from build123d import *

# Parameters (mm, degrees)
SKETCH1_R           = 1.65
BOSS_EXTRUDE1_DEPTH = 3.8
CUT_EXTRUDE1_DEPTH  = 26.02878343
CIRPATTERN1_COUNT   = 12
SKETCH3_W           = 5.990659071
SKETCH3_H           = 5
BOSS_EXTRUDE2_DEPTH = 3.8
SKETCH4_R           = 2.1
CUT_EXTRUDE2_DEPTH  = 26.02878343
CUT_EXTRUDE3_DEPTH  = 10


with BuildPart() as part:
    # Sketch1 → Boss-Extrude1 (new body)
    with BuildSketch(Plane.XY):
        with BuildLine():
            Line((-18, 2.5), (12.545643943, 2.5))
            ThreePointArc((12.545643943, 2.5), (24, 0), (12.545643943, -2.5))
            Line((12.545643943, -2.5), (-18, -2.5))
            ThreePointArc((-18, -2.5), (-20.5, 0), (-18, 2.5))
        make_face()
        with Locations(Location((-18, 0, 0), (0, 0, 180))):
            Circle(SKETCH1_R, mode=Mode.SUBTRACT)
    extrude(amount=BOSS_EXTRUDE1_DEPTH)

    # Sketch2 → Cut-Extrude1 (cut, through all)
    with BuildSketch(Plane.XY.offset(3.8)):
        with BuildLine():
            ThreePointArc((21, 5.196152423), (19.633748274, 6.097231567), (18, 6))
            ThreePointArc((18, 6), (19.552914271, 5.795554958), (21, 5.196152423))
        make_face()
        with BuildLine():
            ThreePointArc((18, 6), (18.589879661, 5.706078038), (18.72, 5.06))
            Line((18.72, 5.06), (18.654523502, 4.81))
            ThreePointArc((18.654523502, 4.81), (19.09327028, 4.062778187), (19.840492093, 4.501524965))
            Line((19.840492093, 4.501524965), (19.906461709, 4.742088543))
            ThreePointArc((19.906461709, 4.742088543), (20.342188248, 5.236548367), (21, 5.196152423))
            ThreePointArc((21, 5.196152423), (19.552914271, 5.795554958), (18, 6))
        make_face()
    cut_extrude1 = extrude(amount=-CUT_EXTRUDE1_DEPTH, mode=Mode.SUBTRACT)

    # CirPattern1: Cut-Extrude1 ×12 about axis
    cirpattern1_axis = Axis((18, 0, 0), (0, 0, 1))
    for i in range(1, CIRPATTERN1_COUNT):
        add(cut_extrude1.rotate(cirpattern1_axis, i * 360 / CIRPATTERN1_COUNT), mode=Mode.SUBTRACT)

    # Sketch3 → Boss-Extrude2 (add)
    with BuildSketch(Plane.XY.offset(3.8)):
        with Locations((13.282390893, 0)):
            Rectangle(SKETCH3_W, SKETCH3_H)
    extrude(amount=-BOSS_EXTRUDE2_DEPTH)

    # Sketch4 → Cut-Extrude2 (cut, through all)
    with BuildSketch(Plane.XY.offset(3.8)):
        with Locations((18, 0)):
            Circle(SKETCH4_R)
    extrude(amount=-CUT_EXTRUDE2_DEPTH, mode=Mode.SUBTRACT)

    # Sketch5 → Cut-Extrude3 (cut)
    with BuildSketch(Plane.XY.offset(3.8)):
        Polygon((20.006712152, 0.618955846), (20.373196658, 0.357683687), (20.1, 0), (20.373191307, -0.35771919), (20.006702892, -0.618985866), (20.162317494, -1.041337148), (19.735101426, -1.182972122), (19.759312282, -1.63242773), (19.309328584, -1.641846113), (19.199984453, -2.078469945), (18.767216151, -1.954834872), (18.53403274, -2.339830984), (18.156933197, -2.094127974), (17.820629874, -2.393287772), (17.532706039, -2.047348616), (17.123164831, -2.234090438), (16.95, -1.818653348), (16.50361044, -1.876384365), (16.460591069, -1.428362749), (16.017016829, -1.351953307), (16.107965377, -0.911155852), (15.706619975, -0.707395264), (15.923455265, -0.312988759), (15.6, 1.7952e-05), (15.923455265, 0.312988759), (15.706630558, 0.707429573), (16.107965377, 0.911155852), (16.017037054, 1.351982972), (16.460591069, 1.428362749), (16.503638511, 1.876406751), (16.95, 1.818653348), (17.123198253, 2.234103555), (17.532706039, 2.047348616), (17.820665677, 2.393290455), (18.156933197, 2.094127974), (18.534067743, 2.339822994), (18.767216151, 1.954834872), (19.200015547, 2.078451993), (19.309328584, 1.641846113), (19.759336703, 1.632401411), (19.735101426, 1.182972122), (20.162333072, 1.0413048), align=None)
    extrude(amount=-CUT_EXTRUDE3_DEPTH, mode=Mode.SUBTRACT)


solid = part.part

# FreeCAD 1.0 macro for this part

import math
import FreeCAD as App
import Part
import Sketcher

V = App.Vector

doc = App.newDocument("Part")
body = doc.addObject("PartDesign::Body", "Body")
body.AllowCompound = True

# Sketch on XY plane
sketch1 = body.newObject("Sketcher::SketchObject", "Sketch")
sketch1.AttachmentSupport = (doc.getObject("XY_Plane"), [""])
sketch1.MapMode = "FlatFace"
sketch1.addGeometry(Part.LineSegment(V(12.545644, 2.5, 0), V(-18, 2.5, 0)), False)
sketch1.addGeometry(Part.ArcOfCircle(Part.Circle(V(-18, 0, 0), V(0, 0, 1), 2.5), math.radians(90), math.radians(270)), False)
sketch1.addGeometry(Part.LineSegment(V(-18, -2.5, 0), V(12.545644, -2.5, 0)), False)
sketch1.addGeometry(Part.ArcOfCircle(Part.Circle(V(18, 0, 0), V(0, 0, 1), 6), math.radians(-155.375682), math.radians(155.375682)), False)
sketch1.addGeometry(Part.Circle(V(-18, 0, 0), V(0, 0, 1), 1.65), False)
sketch1.addConstraint(Sketcher.Constraint("Tangent", 0, 2, 1, 1))
sketch1.addConstraint(Sketcher.Constraint("Tangent", 1, 2, 2, 1))
sketch1.addConstraint(Sketcher.Constraint("Coincident", 2, 2, 3, 1))
sketch1.addConstraint(Sketcher.Constraint("Coincident", 3, 2, 0, 1))
sketch1.addConstraint(Sketcher.Constraint("Horizontal", 0))
sketch1.addConstraint(Sketcher.Constraint("Horizontal", 2))
sketch1.addConstraint(Sketcher.Constraint("Coincident", 4, 3, 1, 3))
sketch1.addConstraint(Sketcher.Constraint("Symmetric", 1, 3, 3, 3, -1, 1))
sketch1.addConstraint(Sketcher.Constraint("PointOnObject", 1, 3, -1))
sketch1.addConstraint(Sketcher.Constraint("Radius", 3, 6.0))
sketch1.addConstraint(Sketcher.Constraint("Diameter", 4, 3.3))
sketch1.addConstraint(Sketcher.Constraint("Radius", 1, 2.5))
sketch1.addConstraint(Sketcher.Constraint("DistanceX", 1, 3, -1, 1, 18.0))
pad1 = body.newObject("PartDesign::Pad", "Pad")
pad1.Profile = sketch1
pad1.Length = 3.8

# Sketch on XY plane
sketch2 = body.newObject("Sketcher::SketchObject", "Sketch001")
sketch2.AttachmentSupport = (doc.getObject("XY_Plane"), [""])
sketch2.MapMode = "FlatFace"
sketch2.AttachmentOffset = App.Placement(V(0, 0, 3.8), App.Rotation())
sketch2.addGeometry(Part.ArcOfCircle(Part.Circle(V(18.962968, 3.593847, 0), V(0, 0, 1), 2.591695), math.radians(38.188186), math.radians(111.811814)), False)
sketch2.addGeometry(Part.ArcOfCircle(Part.Circle(V(17.994471, 5.25002, 0), V(0, 0, 1), 0.75), math.radians(-14.676459), math.radians(89.577616)), False)
sketch2.addGeometry(Part.LineSegment(V(18.72, 5.06, 0), V(18.654524, 4.81, 0)), False)
sketch2.addGeometry(Part.ArcOfCircle(Part.Circle(V(19.247508, 4.655762, 0), V(0, 0, 1), 0.612715), math.radians(165.420209), math.radians(345.420209)), False)
sketch2.addGeometry(Part.LineSegment(V(19.840492, 4.501525, 0), V(19.906462, 4.742089, 0)), False)
sketch2.addGeometry(Part.ArcOfCircle(Part.Circle(V(20.629798, 4.543887, 0), V(0, 0, 1), 0.75), math.radians(60.422385), math.radians(164.676459)), False)
sketch2.addConstraint(Sketcher.Constraint("Coincident", 0, 2, 1, 2))
sketch2.addConstraint(Sketcher.Constraint("Tangent", 1, 1, 2, 1))
sketch2.addConstraint(Sketcher.Constraint("Coincident", 2, 2, 3, 1))
sketch2.addConstraint(Sketcher.Constraint("Coincident", 3, 2, 4, 1))
sketch2.addConstraint(Sketcher.Constraint("Coincident", 4, 2, 5, 2))
sketch2.addConstraint(Sketcher.Constraint("Coincident", 5, 1, 0, 1))
sketch2.addConstraint(Sketcher.Constraint("Equal", 1, 5))
sketch2.addConstraint(Sketcher.Constraint("Radius", 1, 0.75))
sketch2.addConstraint(Sketcher.Constraint("DistanceX", -1, 1, 0, 2, 18.0))
sketch2.addConstraint(Sketcher.Constraint("DistanceY", -1, 1, 0, 2, 6.0))
sketch2.addConstraint(Sketcher.Constraint("DistanceX", -1, 1, 5, 1, 21.0))
sketch2.addConstraint(Sketcher.Constraint("DistanceX", -1, 1, 1, 1, 18.72))
sketch2.addConstraint(Sketcher.Constraint("DistanceY", -1, 1, 1, 1, 5.06))
sketch2.addConstraint(Sketcher.Constraint("DistanceY", -1, 1, 2, 2, 4.81))
sketch2.addConstraint(Sketcher.Constraint("Radius", 0, 2.591695))
sketch2.addConstraint(Sketcher.Constraint("Radius", 3, 0.612715))
sketch2.addConstraint(Sketcher.Constraint("DistanceX", -1, 1, 5, 3, 20.629798))
sketch2.addConstraint(Sketcher.Constraint("DistanceX", -1, 1, 0, 3, 18.962968))
sketch2.addConstraint(Sketcher.Constraint("DistanceX", -1, 1, 4, 2, 19.906462))
sketch2.addConstraint(Sketcher.Constraint("DistanceX", 0, 3, 3, 3, 0.28454))
sketch2.addConstraint(Sketcher.Constraint("DistanceY", 3, 2, 5, 3, 0.042362))
pocket1 = body.newObject("PartDesign::Pocket", "Pocket")
pocket1.Profile = sketch2
pocket1.Type = "ThroughAll"
doc.recompute()

datumline = body.newObject("PartDesign::Line", "DatumLine")
datumline.Placement = App.Placement(V(18, 0, 0), App.Rotation(V(0, 0, 1), V(0, 0, 1)))
polarpattern = body.newObject("PartDesign::PolarPattern", "PolarPattern")
polarpattern.Originals = [pocket1]
polarpattern.Axis = (datumline, [""])
polarpattern.Angle = 360
polarpattern.Occurrences = 12
body.Tip = polarpattern

# Sketch on XY plane
sketch3 = body.newObject("Sketcher::SketchObject", "Sketch002")
sketch3.AttachmentSupport = (doc.getObject("XY_Plane"), [""])
sketch3.MapMode = "FlatFace"
sketch3.AttachmentOffset = App.Placement(V(0, 0, 3.8), App.Rotation())
sketch3.addGeometry(Part.LineSegment(V(10.287061, 2.5, 0), V(10.287061, -2.5, 0)), False)
sketch3.addGeometry(Part.LineSegment(V(10.287061, -2.5, 0), V(16.27772, -2.5, 0)), False)
sketch3.addGeometry(Part.LineSegment(V(16.27772, -2.5, 0), V(16.27772, 2.5, 0)), False)
sketch3.addGeometry(Part.LineSegment(V(16.27772, 2.5, 0), V(10.287061, 2.5, 0)), False)
sketch3.addConstraint(Sketcher.Constraint("Coincident", 0, 2, 1, 1))
sketch3.addConstraint(Sketcher.Constraint("Coincident", 1, 2, 2, 1))
sketch3.addConstraint(Sketcher.Constraint("Coincident", 2, 2, 3, 1))
sketch3.addConstraint(Sketcher.Constraint("Coincident", 3, 2, 0, 1))
sketch3.addConstraint(Sketcher.Constraint("Vertical", 0))
sketch3.addConstraint(Sketcher.Constraint("Horizontal", 1))
sketch3.addConstraint(Sketcher.Constraint("Vertical", 2))
sketch3.addConstraint(Sketcher.Constraint("Horizontal", 3))
sketch3.addConstraint(Sketcher.Constraint("DistanceY", 0, 2, 0, 1, 5.0))
sketch3.addConstraint(Sketcher.Constraint("DistanceY", 0, 2, -1, 1, 2.5))
sketch3.addConstraint(Sketcher.Constraint("DistanceX", 1, 1, 1, 2, 5.990659))
sketch3.addConstraint(Sketcher.Constraint("DistanceX", -1, 1, 0, 2, 10.287061))
pad2 = body.newObject("PartDesign::Pad", "Pad001")
pad2.Profile = sketch3
pad2.Length = 3.8
pad2.Reversed = True

# Sketch on XY plane
sketch4 = body.newObject("Sketcher::SketchObject", "Sketch003")
sketch4.AttachmentSupport = (doc.getObject("XY_Plane"), [""])
sketch4.MapMode = "FlatFace"
sketch4.AttachmentOffset = App.Placement(V(0, 0, 3.8), App.Rotation())
sketch4.addGeometry(Part.Circle(V(18, 0, 0), V(0, 0, 1), 2.1), False)
sketch4.addConstraint(Sketcher.Constraint("PointOnObject", 0, 3, -1))
sketch4.addConstraint(Sketcher.Constraint("Diameter", 0, 4.2))
sketch4.addConstraint(Sketcher.Constraint("DistanceX", -1, 1, 0, 3, 18.0))
pocket2 = body.newObject("PartDesign::Pocket", "Pocket001")
pocket2.Profile = sketch4
pocket2.Type = "ThroughAll"

# Sketch on XY plane
sketch5 = body.newObject("Sketcher::SketchObject", "Sketch004")
sketch5.AttachmentSupport = (doc.getObject("XY_Plane"), [""])
sketch5.MapMode = "FlatFace"
sketch5.AttachmentOffset = App.Placement(V(0, 0, 3.8), App.Rotation())
sketch5.addGeometry(Part.LineSegment(V(20.373197, 0.357684, 0), V(20.006712, 0.618956, 0)), False)
sketch5.addGeometry(Part.LineSegment(V(20.006712, 0.618956, 0), V(20.162333, 1.041305, 0)), False)
sketch5.addGeometry(Part.LineSegment(V(20.162333, 1.041305, 0), V(19.735101, 1.182972, 0)), False)
sketch5.addGeometry(Part.LineSegment(V(19.735101, 1.182972, 0), V(19.759337, 1.632401, 0)), False)
sketch5.addGeometry(Part.LineSegment(V(19.759337, 1.632401, 0), V(19.309329, 1.641846, 0)), False)
sketch5.addGeometry(Part.LineSegment(V(19.309329, 1.641846, 0), V(19.200016, 2.078452, 0)), False)
sketch5.addGeometry(Part.LineSegment(V(19.200016, 2.078452, 0), V(18.767216, 1.954835, 0)), False)
sketch5.addGeometry(Part.LineSegment(V(18.767216, 1.954835, 0), V(18.534068, 2.339823, 0)), False)
sketch5.addGeometry(Part.LineSegment(V(18.534068, 2.339823, 0), V(18.156933, 2.094128, 0)), False)
sketch5.addGeometry(Part.LineSegment(V(18.156933, 2.094128, 0), V(17.820666, 2.39329, 0)), False)
sketch5.addGeometry(Part.LineSegment(V(17.820666, 2.39329, 0), V(17.532706, 2.047349, 0)), False)
sketch5.addGeometry(Part.LineSegment(V(17.532706, 2.047349, 0), V(17.123198, 2.234104, 0)), False)
sketch5.addGeometry(Part.LineSegment(V(17.123198, 2.234104, 0), V(16.95, 1.818653, 0)), False)
sketch5.addGeometry(Part.LineSegment(V(16.95, 1.818653, 0), V(16.503639, 1.876407, 0)), False)
sketch5.addGeometry(Part.LineSegment(V(16.503639, 1.876407, 0), V(16.460591, 1.428363, 0)), False)
sketch5.addGeometry(Part.LineSegment(V(16.460591, 1.428363, 0), V(16.017037, 1.351983, 0)), False)
sketch5.addGeometry(Part.LineSegment(V(16.017037, 1.351983, 0), V(16.107965, 0.911156, 0)), False)
sketch5.addGeometry(Part.LineSegment(V(16.107965, 0.911156, 0), V(15.706631, 0.70743, 0)), False)
sketch5.addGeometry(Part.LineSegment(V(15.706631, 0.70743, 0), V(15.923455, 0.312989, 0)), False)
sketch5.addGeometry(Part.LineSegment(V(15.923455, 0.312989, 0), V(15.6, 0.000018, 0)), False)
sketch5.addGeometry(Part.LineSegment(V(15.6, 0.000018, 0), V(15.923455, -0.312989, 0)), False)
sketch5.addGeometry(Part.LineSegment(V(15.923455, -0.312989, 0), V(15.70662, -0.707395, 0)), False)
sketch5.addGeometry(Part.LineSegment(V(15.70662, -0.707395, 0), V(16.107965, -0.911156, 0)), False)
sketch5.addGeometry(Part.LineSegment(V(16.107965, -0.911156, 0), V(16.017017, -1.351953, 0)), False)
sketch5.addGeometry(Part.LineSegment(V(16.017017, -1.351953, 0), V(16.460591, -1.428363, 0)), False)
sketch5.addGeometry(Part.LineSegment(V(16.460591, -1.428363, 0), V(16.50361, -1.876384, 0)), False)
sketch5.addGeometry(Part.LineSegment(V(16.50361, -1.876384, 0), V(16.95, -1.818653, 0)), False)
sketch5.addGeometry(Part.LineSegment(V(16.95, -1.818653, 0), V(17.123165, -2.23409, 0)), False)
sketch5.addGeometry(Part.LineSegment(V(17.123165, -2.23409, 0), V(17.532706, -2.047349, 0)), False)
sketch5.addGeometry(Part.LineSegment(V(17.532706, -2.047349, 0), V(17.82063, -2.393288, 0)), False)
sketch5.addGeometry(Part.LineSegment(V(17.82063, -2.393288, 0), V(18.156933, -2.094128, 0)), False)
sketch5.addGeometry(Part.LineSegment(V(18.156933, -2.094128, 0), V(18.534033, -2.339831, 0)), False)
sketch5.addGeometry(Part.LineSegment(V(18.534033, -2.339831, 0), V(18.767216, -1.954835, 0)), False)
sketch5.addGeometry(Part.LineSegment(V(18.767216, -1.954835, 0), V(19.199984, -2.07847, 0)), False)
sketch5.addGeometry(Part.LineSegment(V(19.199984, -2.07847, 0), V(19.309329, -1.641846, 0)), False)
sketch5.addGeometry(Part.LineSegment(V(19.309329, -1.641846, 0), V(19.759312, -1.632428, 0)), False)
sketch5.addGeometry(Part.LineSegment(V(19.759312, -1.632428, 0), V(19.735101, -1.182972, 0)), False)
sketch5.addGeometry(Part.LineSegment(V(19.735101, -1.182972, 0), V(20.162317, -1.041337, 0)), False)
sketch5.addGeometry(Part.LineSegment(V(20.162317, -1.041337, 0), V(20.006703, -0.618986, 0)), False)
sketch5.addGeometry(Part.LineSegment(V(20.006703, -0.618986, 0), V(20.373191, -0.357719, 0)), False)
sketch5.addGeometry(Part.LineSegment(V(20.373191, -0.357719, 0), V(20.1, 0, 0)), False)
sketch5.addGeometry(Part.LineSegment(V(20.1, 0, 0), V(20.373197, 0.357684, 0)), False)
sketch5.addConstraint(Sketcher.Constraint("Coincident", 0, 2, 1, 1))
sketch5.addConstraint(Sketcher.Constraint("Coincident", 1, 2, 2, 1))
sketch5.addConstraint(Sketcher.Constraint("Coincident", 2, 2, 3, 1))
sketch5.addConstraint(Sketcher.Constraint("Coincident", 3, 2, 4, 1))
sketch5.addConstraint(Sketcher.Constraint("Coincident", 4, 2, 5, 1))
sketch5.addConstraint(Sketcher.Constraint("Coincident", 5, 2, 6, 1))
sketch5.addConstraint(Sketcher.Constraint("Coincident", 6, 2, 7, 1))
sketch5.addConstraint(Sketcher.Constraint("Coincident", 7, 2, 8, 1))
sketch5.addConstraint(Sketcher.Constraint("Coincident", 8, 2, 9, 1))
sketch5.addConstraint(Sketcher.Constraint("Coincident", 9, 2, 10, 1))
sketch5.addConstraint(Sketcher.Constraint("Coincident", 10, 2, 11, 1))
sketch5.addConstraint(Sketcher.Constraint("Coincident", 11, 2, 12, 1))
sketch5.addConstraint(Sketcher.Constraint("Coincident", 12, 2, 13, 1))
sketch5.addConstraint(Sketcher.Constraint("Coincident", 13, 2, 14, 1))
sketch5.addConstraint(Sketcher.Constraint("Coincident", 14, 2, 15, 1))
sketch5.addConstraint(Sketcher.Constraint("Coincident", 15, 2, 16, 1))
sketch5.addConstraint(Sketcher.Constraint("Coincident", 16, 2, 17, 1))
sketch5.addConstraint(Sketcher.Constraint("Coincident", 17, 2, 18, 1))
sketch5.addConstraint(Sketcher.Constraint("Coincident", 18, 2, 19, 1))
sketch5.addConstraint(Sketcher.Constraint("Coincident", 19, 2, 20, 1))
sketch5.addConstraint(Sketcher.Constraint("Coincident", 20, 2, 21, 1))
sketch5.addConstraint(Sketcher.Constraint("Coincident", 21, 2, 22, 1))
sketch5.addConstraint(Sketcher.Constraint("Coincident", 22, 2, 23, 1))
sketch5.addConstraint(Sketcher.Constraint("Coincident", 23, 2, 24, 1))
sketch5.addConstraint(Sketcher.Constraint("Coincident", 24, 2, 25, 1))
sketch5.addConstraint(Sketcher.Constraint("Coincident", 25, 2, 26, 1))
sketch5.addConstraint(Sketcher.Constraint("Coincident", 26, 2, 27, 1))
sketch5.addConstraint(Sketcher.Constraint("Coincident", 27, 2, 28, 1))
sketch5.addConstraint(Sketcher.Constraint("Coincident", 28, 2, 29, 1))
sketch5.addConstraint(Sketcher.Constraint("Coincident", 29, 2, 30, 1))
sketch5.addConstraint(Sketcher.Constraint("Coincident", 30, 2, 31, 1))
sketch5.addConstraint(Sketcher.Constraint("Coincident", 31, 2, 32, 1))
sketch5.addConstraint(Sketcher.Constraint("Coincident", 32, 2, 33, 1))
sketch5.addConstraint(Sketcher.Constraint("Coincident", 33, 2, 34, 1))
sketch5.addConstraint(Sketcher.Constraint("Coincident", 34, 2, 35, 1))
sketch5.addConstraint(Sketcher.Constraint("Coincident", 35, 2, 36, 1))
sketch5.addConstraint(Sketcher.Constraint("Coincident", 36, 2, 37, 1))
sketch5.addConstraint(Sketcher.Constraint("Coincident", 37, 2, 38, 1))
sketch5.addConstraint(Sketcher.Constraint("Coincident", 38, 2, 39, 1))
sketch5.addConstraint(Sketcher.Constraint("Coincident", 39, 2, 40, 1))
sketch5.addConstraint(Sketcher.Constraint("Coincident", 40, 2, 41, 1))
sketch5.addConstraint(Sketcher.Constraint("Coincident", 41, 2, 0, 1))
sketch5.addConstraint(Sketcher.Constraint("PointOnObject", 40, 2, -1))
sketch5.addConstraint(Sketcher.Constraint("DistanceX", -1, 1, 19, 2, 15.6))
sketch5.addConstraint(Sketcher.Constraint("DistanceX", -1, 1, 40, 2, 20.1))
sketch5.addConstraint(Sketcher.Constraint("DistanceX", -1, 1, 12, 2, 16.95))
sketch5.addConstraint(Sketcher.Constraint("DistanceX", -1, 1, 26, 2, 16.95))
sketch5.addConstraint(Sketcher.Constraint("DistanceX", -1, 1, 2, 2, 19.735101))
sketch5.addConstraint(Sketcher.Constraint("DistanceY", -1, 1, 3, 2, 1.632401))
sketch5.addConstraint(Sketcher.Constraint("DistanceX", -1, 1, 11, 2, 17.123198))
sketch5.addConstraint(Sketcher.Constraint("DistanceX", -1, 1, 36, 2, 19.735101))
sketch5.addConstraint(Sketcher.Constraint("DistanceX", 6, 2, 5, 2, 0.432799))
sketch5.addConstraint(Sketcher.Constraint("DistanceX", 15, 2, 13, 2, 0.486601))
sketch5.addConstraint(Sketcher.Constraint("DistanceY", 26, 2, 23, 2, 0.4667))
sketch5.addConstraint(Sketcher.Constraint("DistanceX", 22, 2, 27, 2, 1.015199))
sketch5.addConstraint(Sketcher.Constraint("DistanceX", 30, 2, 31, 2, 0.3771))
sketch5.addConstraint(Sketcher.Constraint("DistanceX", 29, 2, 34, 2, 1.488699))
sketch5.addConstraint(Sketcher.Constraint("DistanceY", 30, 2, 35, 2, 0.4617))
sketch5.addConstraint(Sketcher.Constraint("DistanceX", 36, 2, 38, 2, 0.271601))
sketch5.addConstraint(Sketcher.Constraint("DistanceX", -1, 1, 4, 2, 19.309329))
sketch5.addConstraint(Sketcher.Constraint("DistanceY", -1, 1, 5, 2, 2.078452))
sketch5.addConstraint(Sketcher.Constraint("DistanceY", -1, 1, 9, 2, 2.39329))
sketch5.addConstraint(Sketcher.Constraint("DistanceY", -1, 1, 10, 2, 2.047349))
sketch5.addConstraint(Sketcher.Constraint("DistanceX", -1, 1, 13, 2, 16.503639))
sketch5.addConstraint(Sketcher.Constraint("DistanceX", -1, 1, 14, 2, 16.460591))
sketch5.addConstraint(Sketcher.Constraint("DistanceX", -1, 1, 17, 2, 15.706631))
sketch5.addConstraint(Sketcher.Constraint("DistanceY", -1, 1, 17, 2, 0.70743))
sketch5.addConstraint(Sketcher.Constraint("DistanceY", -1, 1, 18, 2, 0.312989))
sketch5.addConstraint(Sketcher.Constraint("DistanceY", 20, 2, -1, 1, 0.312989))
sketch5.addConstraint(Sketcher.Constraint("DistanceX", -1, 1, 21, 2, 15.70662))
sketch5.addConstraint(Sketcher.Constraint("DistanceX", -1, 1, 24, 2, 16.460591))
sketch5.addConstraint(Sketcher.Constraint("DistanceX", -1, 1, 25, 2, 16.50361))
sketch5.addConstraint(Sketcher.Constraint("DistanceY", 27, 2, -1, 1, 2.23409))
sketch5.addConstraint(Sketcher.Constraint("DistanceY", 28, 2, -1, 1, 2.047349))
sketch5.addConstraint(Sketcher.Constraint("DistanceX", -1, 1, 29, 2, 17.82063))
sketch5.addConstraint(Sketcher.Constraint("DistanceY", 31, 2, -1, 1, 2.339831))
sketch5.addConstraint(Sketcher.Constraint("DistanceY", 33, 2, -1, 1, 2.07847))
sketch5.addConstraint(Sketcher.Constraint("DistanceX", -1, 1, 39, 2, 20.373191))
sketch5.addConstraint(Sketcher.Constraint("DistanceY", 39, 2, -1, 1, 0.357719))
sketch5.addConstraint(Sketcher.Constraint("DistanceX", 0, 2, 1, 2, 0.155621))
sketch5.addConstraint(Sketcher.Constraint("DistanceY", 0, 2, 1, 2, 0.422349))
sketch5.addConstraint(Sketcher.Constraint("DistanceX", 2, 2, 1, 2, 0.427232))
sketch5.addConstraint(Sketcher.Constraint("DistanceY", 2, 2, 3, 2, 0.449429))
sketch5.addConstraint(Sketcher.Constraint("DistanceX", 4, 2, 3, 2, 0.450008))
sketch5.addConstraint(Sketcher.Constraint("DistanceY", 1, 2, 4, 2, 0.600541))
sketch5.addConstraint(Sketcher.Constraint("DistanceX", 5, 2, 3, 2, 0.559321))
sketch5.addConstraint(Sketcher.Constraint("DistanceY", 4, 2, 6, 2, 0.312989))
sketch5.addConstraint(Sketcher.Constraint("DistanceX", 7, 2, 6, 2, 0.233148))
sketch5.addConstraint(Sketcher.Constraint("DistanceY", 6, 2, 7, 2, 0.384988))
sketch5.addConstraint(Sketcher.Constraint("DistanceY", 5, 2, 7, 2, 0.261371))
sketch5.addConstraint(Sketcher.Constraint("DistanceY", 4, 2, 8, 2, 0.452282))
sketch5.addConstraint(Sketcher.Constraint("DistanceX", 9, 2, 6, 2, 0.94655))
sketch5.addConstraint(Sketcher.Constraint("DistanceX", 10, 2, 9, 2, 0.28796))
sketch5.addConstraint(Sketcher.Constraint("DistanceY", 11, 2, 7, 2, 0.105719))
sketch5.addConstraint(Sketcher.Constraint("DistanceY", 12, 2, 11, 2, 0.41545))
sketch5.addConstraint(Sketcher.Constraint("DistanceY", 13, 2, 10, 2, 0.170942))
sketch5.addConstraint(Sketcher.Constraint("DistanceY", 14, 2, 12, 2, 0.390291))
sketch5.addConstraint(Sketcher.Constraint("DistanceY", 15, 2, 14, 2, 0.07638))
sketch5.addConstraint(Sketcher.Constraint("DistanceX", 15, 2, 16, 2, 0.090928))
sketch5.addConstraint(Sketcher.Constraint("DistanceY", 16, 2, 13, 2, 0.965251))
sketch5.addConstraint(Sketcher.Constraint("DistanceX", 18, 2, 16, 2, 0.18451))
sketch5.addConstraint(Sketcher.Constraint("DistanceY", 19, 2, 18, 2, 0.312971))
sketch5.addConstraint(Sketcher.Constraint("DistanceX", 20, 2, 16, 2, 0.18451))
sketch5.addConstraint(Sketcher.Constraint("DistanceY", 21, 2, 16, 2, 1.618551))
sketch5.addConstraint(Sketcher.Constraint("DistanceY", 22, 2, 21, 2, 0.203761))
sketch5.addConstraint(Sketcher.Constraint("DistanceX", 20, 2, 22, 2, 0.18451))
sketch5.addConstraint(Sketcher.Constraint("DistanceX", 23, 2, 22, 2, 0.090949))
sketch5.addConstraint(Sketcher.Constraint("DistanceY", 23, 2, 21, 2, 0.644558))
sketch5.addConstraint(Sketcher.Constraint("DistanceY", 24, 2, 23, 2, 0.076409))
sketch5.addConstraint(Sketcher.Constraint("DistanceY", 25, 2, 24, 2, 0.448022))
sketch5.addConstraint(Sketcher.Constraint("DistanceX", 27, 2, 28, 2, 0.409541))
sketch5.addConstraint(Sketcher.Constraint("DistanceY", 29, 2, 28, 2, 0.345939))
sketch5.addConstraint(Sketcher.Constraint("DistanceY", 29, 2, 30, 2, 0.29916))
sketch5.addConstraint(Sketcher.Constraint("DistanceX", 27, 2, 30, 2, 1.033768))
sketch5.addConstraint(Sketcher.Constraint("DistanceX", 28, 2, 32, 2, 1.23451))
sketch5.addConstraint(Sketcher.Constraint("DistanceX", 32, 2, 33, 2, 0.432768))
sketch5.addConstraint(Sketcher.Constraint("DistanceY", 32, 2, 34, 2, 0.312989))
sketch5.addConstraint(Sketcher.Constraint("DistanceY", 30, 2, 34, 2, 0.452282))
sketch5.addConstraint(Sketcher.Constraint("DistanceX", 31, 2, 35, 2, 1.22528))
sketch5.addConstraint(Sketcher.Constraint("DistanceY", 31, 2, 36, 2, 1.156859))
sketch5.addConstraint(Sketcher.Constraint("DistanceY", 35, 2, 37, 2, 0.591091))
sketch5.addConstraint(Sketcher.Constraint("DistanceX", 34, 2, 37, 2, 0.852989))
sketch5.addConstraint(Sketcher.Constraint("DistanceY", 37, 2, 38, 2, 0.422351))
sketch5.addConstraint(Sketcher.Constraint("DistanceY", 41, 2, 1, 2, 0.683621))
sketch5.addConstraint(Sketcher.Constraint("Distance", 0, 0.450082))
sketch5.addConstraint(Sketcher.Constraint("Distance", 8, 0.450107))
pocket3 = body.newObject("PartDesign::Pocket", "Pocket002")
pocket3.Profile = sketch5
pocket3.Length = 10

doc.recompute()
